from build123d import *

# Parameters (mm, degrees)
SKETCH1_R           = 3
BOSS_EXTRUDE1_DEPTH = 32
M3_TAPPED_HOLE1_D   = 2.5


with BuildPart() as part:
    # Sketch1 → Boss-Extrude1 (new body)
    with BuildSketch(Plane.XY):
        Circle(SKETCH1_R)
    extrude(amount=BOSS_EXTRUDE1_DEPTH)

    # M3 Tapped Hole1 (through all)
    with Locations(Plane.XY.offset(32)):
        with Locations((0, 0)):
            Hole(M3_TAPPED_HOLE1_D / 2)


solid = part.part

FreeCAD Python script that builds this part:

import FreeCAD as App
import Part
import Sketcher
from FreeCAD import Vector
Q = App.Units.Quantity

doc = App.newDocument("Part")
body = doc.addObject("PartDesign::Body", "Body")

# Sketch on XY plane
sketch1 = body.newObject("Sketcher::SketchObject", "Sketch")
sketch1.AttachmentSupport = (doc.getObject("XY_Plane"), [""])
sketch1.MapMode = "FlatFace"
sketch1.addGeometry(Part.Circle(Vector(0, 0, 0), Vector(0, 0, 1), 3), False)
sketch1.addConstraint(Sketcher.Constraint("Coincident", 0, 3, -1, 1))
sketch1.addConstraint(Sketcher.Constraint("Diameter", 0, Q("6 mm")))
pad1 = body.newObject("PartDesign::Pad", "Pad")
pad1.Profile = sketch1
pad1.Length = 32

# Sketch on XY plane
sketch2 = body.newObject("Sketcher::SketchObject", "Sketch001")
sketch2.AttachmentSupport = (doc.getObject("XY_Plane"), [""])
sketch2.MapMode = "FlatFace"
sketch2.AttachmentOffset = App.Placement(Vector(0, 0, 32), App.Rotation())
sketch2.addGeometry(Part.Circle(Vector(0, 0, 0), Vector(0, 0, 1), 1.25), False)
sketch2.addConstraint(Sketcher.Constraint("Coincident", 0, 3, -1, 1))
sketch2.addConstraint(Sketcher.Constraint("Diameter", 0, Q("2.5 mm")))
doc.recompute()
hole = body.newObject("PartDesign::Hole", "Hole")
hole.Profile = sketch2
hole.ThreadType = "None"
hole.Diameter = 2.5
hole.DepthType = "ThroughAll"

doc.recompute()
